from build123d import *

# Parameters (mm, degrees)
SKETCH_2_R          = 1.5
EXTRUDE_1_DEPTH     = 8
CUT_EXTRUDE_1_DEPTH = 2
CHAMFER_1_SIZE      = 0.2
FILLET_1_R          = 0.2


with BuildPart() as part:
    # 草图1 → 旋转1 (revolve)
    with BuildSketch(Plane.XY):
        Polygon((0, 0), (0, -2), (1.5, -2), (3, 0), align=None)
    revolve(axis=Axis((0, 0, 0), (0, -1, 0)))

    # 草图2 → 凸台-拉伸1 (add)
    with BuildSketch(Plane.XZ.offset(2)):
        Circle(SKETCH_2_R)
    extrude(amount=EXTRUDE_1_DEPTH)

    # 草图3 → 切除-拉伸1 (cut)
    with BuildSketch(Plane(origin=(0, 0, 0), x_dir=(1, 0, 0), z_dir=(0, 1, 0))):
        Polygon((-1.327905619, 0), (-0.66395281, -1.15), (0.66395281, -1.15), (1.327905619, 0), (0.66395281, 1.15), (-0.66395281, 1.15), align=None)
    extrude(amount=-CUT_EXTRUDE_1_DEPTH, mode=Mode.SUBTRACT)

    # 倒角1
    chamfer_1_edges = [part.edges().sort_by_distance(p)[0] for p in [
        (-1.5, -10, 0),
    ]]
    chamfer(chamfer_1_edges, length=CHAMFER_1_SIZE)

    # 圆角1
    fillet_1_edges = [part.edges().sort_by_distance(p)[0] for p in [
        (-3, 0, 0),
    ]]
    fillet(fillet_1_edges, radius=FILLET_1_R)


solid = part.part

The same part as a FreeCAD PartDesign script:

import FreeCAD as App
import Part
import Sketcher
from FreeCAD import Vector
Q = App.Units.Quantity


def edges_at(feature, points):
    """Names of the edges that pass closest to the given points."""
    edges = feature.Shape.Edges
    near = lambda p: min(range(len(edges)), key=lambda i: edges[i].distToShape(Part.Vertex(*p))[0])
    return sorted({f"Edge{near(p) + 1}" for p in points})

doc = App.newDocument("Part")
body = doc.addObject("PartDesign::Body", "Body")

# Sketch on XY plane
sketch1 = doc.addObject("Sketcher::SketchObject", "Sketch")
body.addObject(sketch1)
sketch1.AttachmentSupport = (doc.XY_Plane, [""])
sketch1.MapMode = "FlatFace"
sketch1.addGeometry([
    Part.LineSegment(Vector(0, 0, 0), Vector(0, -2, 0)),
    Part.LineSegment(Vector(0, -2, 0), Vector(1.5, -2, 0)),
    Part.LineSegment(Vector(1.5, -2, 0), Vector(3, 0, 0)),
    Part.LineSegment(Vector(3, 0, 0), Vector(0, 0, 0)),
], False)
sketch1.addConstraint([
    Sketcher.Constraint("Coincident", 0, 2, 1, 1),
    Sketcher.Constraint("Coincident", 1, 2, 2, 1),
    Sketcher.Constraint("Coincident", 2, 2, 3, 1),
    Sketcher.Constraint("Coincident", 3, 2, 0, 1),
    Sketcher.Constraint("Vertical", 0),
    Sketcher.Constraint("Horizontal", 1),
    Sketcher.Constraint("Horizontal", 3),
    Sketcher.Constraint("Coincident", 3, 2, -1, 1),
    Sketcher.Constraint("DistanceX", 3, 2, 3, 1, 3.0),
    Sketcher.Constraint("DistanceY", 0, 2, 0, 1, 2.0),
    Sketcher.Constraint("DistanceX", 1, 1, 1, 2, 1.5),
])
revolution = doc.addObject("PartDesign::Revolution", "Revolution")
body.addObject(revolution)
revolution.Profile = sketch1
revolution.ReferenceAxis = (sketch1, ["V_Axis"])
revolution.Angle = 360

# Sketch on XZ plane
sketch2 = doc.addObject("Sketcher::SketchObject", "Sketch001")
body.addObject(sketch2)
sketch2.AttachmentSupport = (doc.XZ_Plane, [""])
sketch2.MapMode = "FlatFace"
sketch2.AttachmentOffset = App.Placement(Vector(0, 0, 2), App.Rotation())
sketch2.addGeometry(Part.Circle(Vector(0, 0, 0), Vector(0, 0, 1), 1.5), False)
sketch2.addConstraint([
    Sketcher.Constraint("Coincident", 0, 3, -1, 1),
    Sketcher.Constraint("Diameter", 0, 3.0),
])
pad1 = doc.addObject("PartDesign::Pad", "Pad")
body.addObject(pad1)
pad1.Profile = sketch2
pad1.Length = 8

# Sketch on XZ plane
sketch3 = doc.addObject("Sketcher::SketchObject", "Sketch002")
body.addObject(sketch3)
sketch3.AttachmentSupport = (doc.XZ_Plane, [""])
sketch3.MapMode = "FlatFace"
sketch3.addGeometry([
    Part.LineSegment(Vector(-1.3, 0, 0), Vector(-0.7, 1.1, 0)),  # 0
    Part.LineSegment(Vector(-0.7, 1.1, 0), Vector(0.7, 1.1, 0)),  # 1
    Part.LineSegment(Vector(0.7, 1.1, 0), Vector(1.3, 0, 0)),  # 2
    Part.LineSegment(Vector(1.3, 0, 0), Vector(0.7, -1.1, 0)),  # 3
    Part.LineSegment(Vector(0.7, -1.1, 0), Vector(-0.7, -1.1, 0)),  # 4
    Part.LineSegment(Vector(-0.7, -1.1, 0), Vector(-1.3, 0, 0)),  # 5
], False)
sketch3.addConstraint([
    Sketcher.Constraint("Coincident", 0, 2, 1, 1),
    Sketcher.Constraint("Coincident", 1, 2, 2, 1),
    Sketcher.Constraint("Coincident", 2, 2, 3, 1),
    Sketcher.Constraint("Coincident", 3, 2, 4, 1),
    Sketcher.Constraint("Coincident", 4, 2, 5, 1),
    Sketcher.Constraint("Coincident", 5, 2, 0, 1),
    Sketcher.Constraint("Horizontal", 1),
    Sketcher.Constraint("Horizontal", 4),
    Sketcher.Constraint("Symmetric", 0, 2, 3, 2, -1, 1),
    Sketcher.Constraint("Symmetric", 2, 2, 5, 2, -1, 1),
    Sketcher.Constraint("PointOnObject", 2, 2, -1),
    Sketcher.Constraint("Parallel", 2, 5),
    Sketcher.Constraint("Vertical", 1, 2, 3, 2),
    Sketcher.Constraint("Angle", 0, Q("60 deg")),
    Sketcher.Constraint("DistanceY", 3, 2, 1, 2, 2.3),
    Sketcher.Constraint("DistanceX", 1, 1, 1, 2, 1.327906),
])
pocket1 = doc.addObject("PartDesign::Pocket", "Pocket")
body.addObject(pocket1)
pocket1.Profile = sketch3
pocket1.Length = 2
pocket1.Reversed = True
doc.recompute()

chamfer = doc.addObject("PartDesign::Chamfer", "Chamfer")
body.addObject(chamfer)
chamfer.Base = (pocket1, edges_at(pocket1, [(-1.5, -10, 0)]))
chamfer.Size = 0.2
doc.recompute()

fillet = doc.addObject("PartDesign::Fillet", "Fillet")
body.addObject(fillet)
fillet.Base = (chamfer, edges_at(chamfer, [(-3, 0, 0)]))
fillet.Radius = 0.2

doc.recompute()
